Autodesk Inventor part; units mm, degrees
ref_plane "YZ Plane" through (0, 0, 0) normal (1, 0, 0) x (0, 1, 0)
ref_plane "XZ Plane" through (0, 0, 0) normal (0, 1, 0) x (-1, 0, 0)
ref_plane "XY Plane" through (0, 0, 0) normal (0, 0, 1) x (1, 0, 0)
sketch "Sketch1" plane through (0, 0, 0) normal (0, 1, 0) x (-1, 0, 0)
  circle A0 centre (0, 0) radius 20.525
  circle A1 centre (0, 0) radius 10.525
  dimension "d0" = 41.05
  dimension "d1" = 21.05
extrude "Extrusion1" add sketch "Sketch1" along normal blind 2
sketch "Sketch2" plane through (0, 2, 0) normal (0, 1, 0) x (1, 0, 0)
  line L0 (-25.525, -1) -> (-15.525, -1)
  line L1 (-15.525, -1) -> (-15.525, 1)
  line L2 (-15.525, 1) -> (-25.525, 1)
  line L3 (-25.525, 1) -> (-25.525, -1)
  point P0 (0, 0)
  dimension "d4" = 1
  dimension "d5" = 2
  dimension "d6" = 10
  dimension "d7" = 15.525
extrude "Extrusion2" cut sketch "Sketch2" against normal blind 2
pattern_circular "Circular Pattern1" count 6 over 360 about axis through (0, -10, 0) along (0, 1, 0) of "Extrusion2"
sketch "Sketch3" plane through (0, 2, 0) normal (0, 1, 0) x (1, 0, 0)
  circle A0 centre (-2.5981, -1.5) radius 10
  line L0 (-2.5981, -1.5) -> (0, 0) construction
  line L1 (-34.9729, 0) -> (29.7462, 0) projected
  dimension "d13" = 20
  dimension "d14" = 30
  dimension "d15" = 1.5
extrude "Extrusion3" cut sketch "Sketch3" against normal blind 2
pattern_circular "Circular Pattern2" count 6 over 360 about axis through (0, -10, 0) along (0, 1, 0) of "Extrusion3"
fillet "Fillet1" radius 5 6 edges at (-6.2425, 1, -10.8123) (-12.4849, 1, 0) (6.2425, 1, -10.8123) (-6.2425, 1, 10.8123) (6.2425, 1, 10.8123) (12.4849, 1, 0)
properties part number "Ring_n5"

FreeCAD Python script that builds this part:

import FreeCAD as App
import Part
import Sketcher


def edges_at(feature, points):
    """Names of the edges that pass closest to the given points."""
    edges = feature.Shape.Edges
    near = lambda p: min(range(len(edges)), key=lambda i: edges[i].distToShape(Part.Vertex(*p))[0])
    return sorted({f"Edge{near(p) + 1}" for p in points})


def add_polygon(sketch, points):
    """Adds a closed chain of lines whose ends are joined by coincident constraints."""
    first, n = sketch.GeometryCount, len(points)
    for a, b in zip(points, points[1:] + points[:1]):
        sketch.addGeometry(Part.LineSegment(App.Vector(*a, 0), App.Vector(*b, 0)), False)
    for i in range(n):
        sketch.addConstraint(Sketcher.Constraint("Coincident", first + i, 2, first + (i + 1) % n, 1))

doc = App.newDocument("Part")
body = doc.addObject("PartDesign::Body", "Body")

# Sketch on XZ plane
sketch1 = body.newObject("Sketcher::SketchObject", "Sketch")
sketch1.AttachmentSupport = (doc.getObject("XZ_Plane"), [""])
sketch1.MapMode = "FlatFace"
sketch1.addGeometry([
    Part.Circle(App.Vector(0, 0, 0), App.Vector(0, 0, 1), 21),
    Part.Circle(App.Vector(0, 0, 0), App.Vector(0, 0, 1), 11),
], False)
sketch1.addConstraint([
    Sketcher.Constraint("Coincident", 0, 3, -1, 1),
    Sketcher.Constraint("Coincident", 1, 3, -1, 1),
    Sketcher.Constraint("Diameter", 0, 41.05),
    Sketcher.Constraint("Diameter", 1, 21.05),
])
pad1 = body.newObject("PartDesign::Pad", "Pad")
pad1.Profile = sketch1
pad1.Length = 2
pad1.Reversed = True

# Sketch on XZ plane
sketch2 = body.newObject("Sketcher::SketchObject", "Sketch001")
sketch2.AttachmentSupport = (doc.getObject("XZ_Plane"), [""])
sketch2.MapMode = "FlatFace"
sketch2.AttachmentOffset = App.Placement(App.Vector(0, 0, -2), App.Rotation())
add_polygon(sketch2, [(-25.5, -1), (-25.5, 1), (-15.5, 1), (-15.5, -1)])  # lines 0-3
sketch2.addConstraint([
    Sketcher.Constraint("Vertical", 0),
    Sketcher.Constraint("Horizontal", 1),
    Sketcher.Constraint("Vertical", 2),
    Sketcher.Constraint("Horizontal", 3),
    Sketcher.Constraint("DistanceX", 1, 1, 1, 2, 10.0),
    Sketcher.Constraint("DistanceY", 0, 1, 0, 2, 2.0),
    Sketcher.Constraint("DistanceY", -1, 1, 0, 2, 1.0),
    Sketcher.Constraint("DistanceX", 1, 2, -1, 1, 15.525),
])
pocket1 = body.newObject("PartDesign::Pocket", "Pocket")
pocket1.Profile = sketch2
pocket1.Length = 2
pocket1.Reversed = True
doc.recompute()

polarpattern = body.newObject("PartDesign::PolarPattern", "PolarPattern")
polarpattern.Originals = [pocket1]
polarpattern.Axis = (doc.getObject("Y_Axis"), [""])
polarpattern.Angle = 360
polarpattern.Occurrences = 6
body.Tip = polarpattern

# Sketch on XZ plane
sketch3 = body.newObject("Sketcher::SketchObject", "Sketch002")
sketch3.AttachmentSupport = (doc.getObject("XZ_Plane"), [""])
sketch3.MapMode = "FlatFace"
sketch3.AttachmentOffset = App.Placement(App.Vector(0, 0, -2), App.Rotation())
sketch3.addGeometry(Part.Circle(App.Vector(-3, 2, 0), App.Vector(0, 0, 1), 10), False)
sketch3.addConstraint([
    Sketcher.Constraint("Diameter", 0, 20.0),
    Sketcher.Constraint("DistanceY", -1, 1, 0, 3, 1.5),
    Sketcher.Constraint("DistanceX", 0, 3, -1, 1, 2.598),
])
pocket2 = body.newObject("PartDesign::Pocket", "Pocket001")
pocket2.Profile = sketch3
pocket2.Length = 2
pocket2.Reversed = True
doc.recompute()

polarpattern2 = body.newObject("PartDesign::PolarPattern", "PolarPattern001")
polarpattern2.Originals = [pocket2]
polarpattern2.Axis = (doc.getObject("Y_Axis"), [""])
polarpattern2.Angle = 360
polarpattern2.Occurrences = 6
body.Tip = polarpattern2
doc.recompute()

fillet = body.newObject("PartDesign::Fillet", "Fillet")
fillet.Base = (polarpattern2, edges_at(polarpattern2, [
    (-6.242, 1, -10.812),
    (-12.485, 1, 0),
    (6.242, 1, -10.812),
    (-6.242, 1, 10.812),
    (6.242, 1, 10.812),
    (12.485, 1, 0),
]))
fillet.Radius = 5

doc.recompute()
